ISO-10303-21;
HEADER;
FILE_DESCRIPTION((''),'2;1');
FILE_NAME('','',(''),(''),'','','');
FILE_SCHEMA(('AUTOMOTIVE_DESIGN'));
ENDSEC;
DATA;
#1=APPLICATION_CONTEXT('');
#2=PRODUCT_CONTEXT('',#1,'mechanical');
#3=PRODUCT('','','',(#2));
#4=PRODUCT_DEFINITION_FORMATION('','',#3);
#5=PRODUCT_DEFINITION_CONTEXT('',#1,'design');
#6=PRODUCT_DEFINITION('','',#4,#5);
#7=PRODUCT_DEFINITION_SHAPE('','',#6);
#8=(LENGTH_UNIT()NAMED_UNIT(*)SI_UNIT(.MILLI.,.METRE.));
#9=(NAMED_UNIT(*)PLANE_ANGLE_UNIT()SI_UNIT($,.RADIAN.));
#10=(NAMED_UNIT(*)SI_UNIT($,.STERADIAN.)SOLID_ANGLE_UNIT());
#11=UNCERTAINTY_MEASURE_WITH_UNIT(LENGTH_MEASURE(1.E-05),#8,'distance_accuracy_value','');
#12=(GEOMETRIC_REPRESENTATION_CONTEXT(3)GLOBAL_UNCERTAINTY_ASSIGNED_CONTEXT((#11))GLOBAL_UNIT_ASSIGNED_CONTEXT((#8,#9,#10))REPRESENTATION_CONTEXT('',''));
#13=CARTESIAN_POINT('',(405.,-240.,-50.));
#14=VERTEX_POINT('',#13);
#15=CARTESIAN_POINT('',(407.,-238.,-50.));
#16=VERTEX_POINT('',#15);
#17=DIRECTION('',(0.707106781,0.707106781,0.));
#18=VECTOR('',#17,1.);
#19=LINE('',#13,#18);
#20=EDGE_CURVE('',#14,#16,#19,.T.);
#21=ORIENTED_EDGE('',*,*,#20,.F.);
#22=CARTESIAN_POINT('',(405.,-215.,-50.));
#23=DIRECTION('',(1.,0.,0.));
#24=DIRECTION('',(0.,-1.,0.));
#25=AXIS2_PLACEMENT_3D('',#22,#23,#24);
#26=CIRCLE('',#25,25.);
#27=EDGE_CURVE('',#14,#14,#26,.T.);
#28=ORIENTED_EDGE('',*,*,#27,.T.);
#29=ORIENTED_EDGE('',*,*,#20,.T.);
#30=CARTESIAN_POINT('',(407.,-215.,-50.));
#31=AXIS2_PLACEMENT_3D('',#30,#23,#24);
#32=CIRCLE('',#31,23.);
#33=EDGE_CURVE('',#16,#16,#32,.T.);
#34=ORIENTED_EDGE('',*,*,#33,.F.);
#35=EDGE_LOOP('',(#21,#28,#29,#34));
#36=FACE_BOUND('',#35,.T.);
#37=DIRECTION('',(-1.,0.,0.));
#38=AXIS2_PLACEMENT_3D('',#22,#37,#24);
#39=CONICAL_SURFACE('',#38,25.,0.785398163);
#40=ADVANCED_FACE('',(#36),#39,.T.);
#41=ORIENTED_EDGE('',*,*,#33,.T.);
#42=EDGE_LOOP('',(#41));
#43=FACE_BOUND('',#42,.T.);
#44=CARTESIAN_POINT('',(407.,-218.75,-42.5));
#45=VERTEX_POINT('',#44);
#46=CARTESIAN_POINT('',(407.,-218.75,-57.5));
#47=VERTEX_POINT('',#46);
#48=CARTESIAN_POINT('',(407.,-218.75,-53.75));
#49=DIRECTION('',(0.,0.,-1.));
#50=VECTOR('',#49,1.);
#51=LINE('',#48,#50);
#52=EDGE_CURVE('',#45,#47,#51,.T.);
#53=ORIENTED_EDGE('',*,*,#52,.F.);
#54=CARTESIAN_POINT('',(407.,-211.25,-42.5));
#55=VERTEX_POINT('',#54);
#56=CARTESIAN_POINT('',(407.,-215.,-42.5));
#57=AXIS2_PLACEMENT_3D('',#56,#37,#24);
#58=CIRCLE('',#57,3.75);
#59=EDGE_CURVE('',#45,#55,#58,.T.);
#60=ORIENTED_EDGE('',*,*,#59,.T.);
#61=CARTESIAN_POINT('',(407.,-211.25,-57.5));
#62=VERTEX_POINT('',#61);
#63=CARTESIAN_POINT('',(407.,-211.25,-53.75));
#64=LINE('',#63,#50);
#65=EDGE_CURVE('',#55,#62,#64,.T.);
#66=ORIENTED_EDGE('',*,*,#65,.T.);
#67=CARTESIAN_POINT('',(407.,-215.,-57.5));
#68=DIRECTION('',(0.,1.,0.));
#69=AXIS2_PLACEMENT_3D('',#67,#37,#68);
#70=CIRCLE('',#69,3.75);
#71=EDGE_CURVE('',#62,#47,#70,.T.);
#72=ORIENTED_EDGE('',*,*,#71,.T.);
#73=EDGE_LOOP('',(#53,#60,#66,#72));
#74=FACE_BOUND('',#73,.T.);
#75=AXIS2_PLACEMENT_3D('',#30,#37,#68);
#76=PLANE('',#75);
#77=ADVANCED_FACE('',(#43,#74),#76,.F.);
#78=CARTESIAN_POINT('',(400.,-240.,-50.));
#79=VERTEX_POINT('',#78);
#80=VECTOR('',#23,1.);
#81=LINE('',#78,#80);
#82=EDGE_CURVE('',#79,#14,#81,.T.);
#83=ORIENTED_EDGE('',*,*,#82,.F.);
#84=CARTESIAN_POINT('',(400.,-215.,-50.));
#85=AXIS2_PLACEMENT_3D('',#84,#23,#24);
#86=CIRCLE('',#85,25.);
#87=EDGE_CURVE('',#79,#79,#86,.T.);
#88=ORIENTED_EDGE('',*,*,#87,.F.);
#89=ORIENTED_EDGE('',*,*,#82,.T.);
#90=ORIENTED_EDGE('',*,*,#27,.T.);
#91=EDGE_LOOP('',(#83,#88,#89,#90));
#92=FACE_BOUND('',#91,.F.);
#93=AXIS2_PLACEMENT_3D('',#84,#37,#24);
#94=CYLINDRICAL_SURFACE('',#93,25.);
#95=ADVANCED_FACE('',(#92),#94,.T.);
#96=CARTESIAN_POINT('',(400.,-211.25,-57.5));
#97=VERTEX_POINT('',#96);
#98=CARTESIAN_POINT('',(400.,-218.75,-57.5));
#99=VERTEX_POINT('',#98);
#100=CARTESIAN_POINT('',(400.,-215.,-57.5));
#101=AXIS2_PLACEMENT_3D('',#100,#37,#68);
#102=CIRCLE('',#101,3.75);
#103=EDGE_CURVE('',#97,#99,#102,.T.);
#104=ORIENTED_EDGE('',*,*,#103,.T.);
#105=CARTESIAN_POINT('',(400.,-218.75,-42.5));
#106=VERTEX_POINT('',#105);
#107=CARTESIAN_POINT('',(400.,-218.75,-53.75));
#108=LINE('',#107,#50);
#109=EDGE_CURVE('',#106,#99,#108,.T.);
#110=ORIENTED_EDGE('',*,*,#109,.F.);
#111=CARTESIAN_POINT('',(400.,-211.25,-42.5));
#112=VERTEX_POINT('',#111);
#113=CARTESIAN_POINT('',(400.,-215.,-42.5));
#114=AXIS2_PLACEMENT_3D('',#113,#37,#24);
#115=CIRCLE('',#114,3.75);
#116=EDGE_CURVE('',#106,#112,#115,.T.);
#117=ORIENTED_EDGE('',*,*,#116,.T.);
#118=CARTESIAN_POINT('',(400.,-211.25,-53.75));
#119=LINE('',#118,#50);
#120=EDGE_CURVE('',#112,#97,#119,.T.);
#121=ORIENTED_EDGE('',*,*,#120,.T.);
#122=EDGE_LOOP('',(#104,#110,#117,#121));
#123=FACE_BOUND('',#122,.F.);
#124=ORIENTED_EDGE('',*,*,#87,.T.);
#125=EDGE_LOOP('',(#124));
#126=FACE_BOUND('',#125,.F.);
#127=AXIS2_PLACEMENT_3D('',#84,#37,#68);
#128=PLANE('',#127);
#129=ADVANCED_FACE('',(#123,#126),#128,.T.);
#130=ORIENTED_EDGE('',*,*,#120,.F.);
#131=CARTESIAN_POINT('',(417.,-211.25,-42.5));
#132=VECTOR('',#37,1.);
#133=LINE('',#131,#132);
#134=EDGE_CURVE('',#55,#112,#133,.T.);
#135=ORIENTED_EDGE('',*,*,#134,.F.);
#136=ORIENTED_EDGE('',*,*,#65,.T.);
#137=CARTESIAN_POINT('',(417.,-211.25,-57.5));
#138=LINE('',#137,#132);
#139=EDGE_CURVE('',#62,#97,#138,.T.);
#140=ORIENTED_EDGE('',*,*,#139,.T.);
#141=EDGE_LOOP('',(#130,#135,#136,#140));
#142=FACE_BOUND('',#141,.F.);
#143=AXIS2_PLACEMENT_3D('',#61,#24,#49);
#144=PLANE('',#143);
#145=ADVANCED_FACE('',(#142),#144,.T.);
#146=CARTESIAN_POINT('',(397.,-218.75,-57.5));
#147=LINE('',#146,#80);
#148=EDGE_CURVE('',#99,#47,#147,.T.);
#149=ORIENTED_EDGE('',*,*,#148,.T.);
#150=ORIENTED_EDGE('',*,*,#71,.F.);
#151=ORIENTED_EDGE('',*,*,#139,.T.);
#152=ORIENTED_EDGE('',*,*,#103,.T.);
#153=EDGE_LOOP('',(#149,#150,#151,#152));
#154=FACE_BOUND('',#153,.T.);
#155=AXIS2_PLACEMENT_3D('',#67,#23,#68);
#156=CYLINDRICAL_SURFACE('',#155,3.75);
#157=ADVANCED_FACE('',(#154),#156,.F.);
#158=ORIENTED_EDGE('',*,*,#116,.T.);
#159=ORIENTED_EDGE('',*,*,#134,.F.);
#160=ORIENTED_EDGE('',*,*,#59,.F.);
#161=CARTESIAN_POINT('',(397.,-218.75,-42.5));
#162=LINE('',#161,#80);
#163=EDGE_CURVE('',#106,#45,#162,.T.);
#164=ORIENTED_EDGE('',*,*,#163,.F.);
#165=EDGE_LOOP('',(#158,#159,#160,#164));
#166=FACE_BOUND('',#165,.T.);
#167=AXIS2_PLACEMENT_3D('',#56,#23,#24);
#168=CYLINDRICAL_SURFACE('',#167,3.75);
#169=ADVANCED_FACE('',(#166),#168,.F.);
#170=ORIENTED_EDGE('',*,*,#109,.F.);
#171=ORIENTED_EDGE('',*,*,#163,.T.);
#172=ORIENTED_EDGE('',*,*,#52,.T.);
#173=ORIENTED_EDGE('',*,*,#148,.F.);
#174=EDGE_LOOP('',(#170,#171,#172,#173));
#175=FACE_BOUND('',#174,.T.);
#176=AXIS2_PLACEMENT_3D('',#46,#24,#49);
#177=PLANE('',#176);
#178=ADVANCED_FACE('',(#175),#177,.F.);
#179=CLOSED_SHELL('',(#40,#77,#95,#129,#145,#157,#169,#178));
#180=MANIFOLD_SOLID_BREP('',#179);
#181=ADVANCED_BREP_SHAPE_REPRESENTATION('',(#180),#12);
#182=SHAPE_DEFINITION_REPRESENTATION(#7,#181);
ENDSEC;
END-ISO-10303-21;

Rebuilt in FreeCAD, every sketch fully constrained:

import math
import FreeCAD as App
import Part
import Sketcher
from FreeCAD import Vector
Q = App.Units.Quantity


def edges_at(feature, points):
    """Names of the edges that pass closest to the given points."""
    edges = feature.Shape.Edges
    near = lambda p: min(range(len(edges)), key=lambda i: edges[i].distToShape(Part.Vertex(*p))[0])
    return sorted({f"Edge{near(p) + 1}" for p in points})

doc = App.newDocument("Part")
body = doc.addObject("PartDesign::Body", "Body")

sketch1 = body.newObject("Sketcher::SketchObject", "Sketch")
sketch1.AttachmentSupport = (doc.getObject("XZ_Plane"), [""])
sketch1.MapMode = "FlatFace"
sketch1.AttachmentOffset = App.Placement(Vector(0, 0, -7), App.Rotation())
sketch1.addGeometry([
    Part.ArcOfCircle(Part.Circle(Vector(0, 7.5, 0), Vector(0, 0, 1), 3.8), math.radians(0), math.radians(180)),
    Part.LineSegment(Vector(3.8, 7.5, 0), Vector(3.8, -7.5, 0)),
    Part.ArcOfCircle(Part.Circle(Vector(0, -7.5, 0), Vector(0, 0, 1), 3.8), math.radians(180), math.radians(360)),
    Part.LineSegment(Vector(-3.8, -7.5, 0), Vector(-3.8, 7.5, 0)),
], False)
sketch1.addConstraint([
    Sketcher.Constraint("Tangent", 0, 1, 1, 1),
    Sketcher.Constraint("Tangent", 1, 2, 2, 2),
    Sketcher.Constraint("Tangent", 2, 1, 3, 1),
    Sketcher.Constraint("Tangent", 3, 2, 0, 2),
    Sketcher.Constraint("Vertical", 1),
    Sketcher.Constraint("Vertical", 3),
    Sketcher.Constraint("Symmetric", 0, 3, 2, 3, -1, 1),
    Sketcher.Constraint("DistanceY", 1, 2, 1, 1, Q("15 mm")),
    Sketcher.Constraint("Radius", 0, Q("3.75 mm")),
])
pad1 = body.newObject("PartDesign::Pad", "Pad")
pad1.Profile = sketch1
pad1.Length = 20
pad1.Midplane = True
body2 = doc.addObject("PartDesign::Body", "Body001")

sketch2 = body2.newObject("Sketcher::SketchObject", "Sketch001")
sketch2.AttachmentSupport = (doc.getObject("XZ_Plane001"), [""])
sketch2.MapMode = "FlatFace"
sketch2.addGeometry(Part.Circle(Vector(0, 0, 0), Vector(0, 0, 1), 25), False)
sketch2.addConstraint([
    Sketcher.Constraint("Coincident", 0, 3, -1, 1),
    Sketcher.Constraint("Diameter", 0, Q("50 mm")),
])
pad2 = body2.newObject("PartDesign::Pad", "Pad001")
pad2.Profile = sketch2
pad2.Length = 7
pad2.Reversed = True
doc.recompute()

chamfer = body2.newObject("PartDesign::Chamfer", "Chamfer")
chamfer.Base = (pad2, edges_at(pad2, [(-25, 7, 0)]))
chamfer.Size = 2
doc.recompute()

boolean = body2.newObject("PartDesign::Boolean", "Boolean")
boolean.Type = "Cut"
boolean.addObjects([body])
body3 = doc.addObject("PartDesign::Body", "Body002")
doc.recompute()

body2.Placement = App.Placement(Vector(0, 0, -83.343755), App.Rotation(Vector(0, 0, 1), 0))
boolean2 = body3.newObject("PartDesign::Boolean", "Boolean001")
boolean2.Type = "Fuse"
boolean2.addObjects([body2])
body4 = doc.addObject("PartDesign::Body", "Body003")
doc.recompute()

body3.Placement = App.Placement(Vector(0, 0, 0), App.Rotation(Vector(1, 0, 0), 180))
boolean3 = body4.newObject("PartDesign::Boolean", "Boolean002")
boolean3.Type = "Fuse"
boolean3.addObjects([body3])
body5 = doc.addObject("PartDesign::Body", "Body004")
doc.recompute()

body4.Placement = App.Placement(Vector(-400, -215, -133.343755), App.Rotation(Vector(0, 0, 1), 270))
boolean4 = body5.newObject("PartDesign::Boolean", "Boolean003")
boolean4.Type = "Fuse"
boolean4.addObjects([body4])
body6 = doc.addObject("PartDesign::Body", "Body005")
doc.recompute()

mirroring = doc.addObject("Part::Mirroring", "Mirroring")
mirroring.Source = body5
mirroring.Base = Vector(0, 0, 0)
mirroring.Normal = Vector(1, 0, 0)
body6.BaseFeature = mirroring
doc.recompute()
body5.Visibility = False
mirroring.Visibility = False

doc.recompute()
